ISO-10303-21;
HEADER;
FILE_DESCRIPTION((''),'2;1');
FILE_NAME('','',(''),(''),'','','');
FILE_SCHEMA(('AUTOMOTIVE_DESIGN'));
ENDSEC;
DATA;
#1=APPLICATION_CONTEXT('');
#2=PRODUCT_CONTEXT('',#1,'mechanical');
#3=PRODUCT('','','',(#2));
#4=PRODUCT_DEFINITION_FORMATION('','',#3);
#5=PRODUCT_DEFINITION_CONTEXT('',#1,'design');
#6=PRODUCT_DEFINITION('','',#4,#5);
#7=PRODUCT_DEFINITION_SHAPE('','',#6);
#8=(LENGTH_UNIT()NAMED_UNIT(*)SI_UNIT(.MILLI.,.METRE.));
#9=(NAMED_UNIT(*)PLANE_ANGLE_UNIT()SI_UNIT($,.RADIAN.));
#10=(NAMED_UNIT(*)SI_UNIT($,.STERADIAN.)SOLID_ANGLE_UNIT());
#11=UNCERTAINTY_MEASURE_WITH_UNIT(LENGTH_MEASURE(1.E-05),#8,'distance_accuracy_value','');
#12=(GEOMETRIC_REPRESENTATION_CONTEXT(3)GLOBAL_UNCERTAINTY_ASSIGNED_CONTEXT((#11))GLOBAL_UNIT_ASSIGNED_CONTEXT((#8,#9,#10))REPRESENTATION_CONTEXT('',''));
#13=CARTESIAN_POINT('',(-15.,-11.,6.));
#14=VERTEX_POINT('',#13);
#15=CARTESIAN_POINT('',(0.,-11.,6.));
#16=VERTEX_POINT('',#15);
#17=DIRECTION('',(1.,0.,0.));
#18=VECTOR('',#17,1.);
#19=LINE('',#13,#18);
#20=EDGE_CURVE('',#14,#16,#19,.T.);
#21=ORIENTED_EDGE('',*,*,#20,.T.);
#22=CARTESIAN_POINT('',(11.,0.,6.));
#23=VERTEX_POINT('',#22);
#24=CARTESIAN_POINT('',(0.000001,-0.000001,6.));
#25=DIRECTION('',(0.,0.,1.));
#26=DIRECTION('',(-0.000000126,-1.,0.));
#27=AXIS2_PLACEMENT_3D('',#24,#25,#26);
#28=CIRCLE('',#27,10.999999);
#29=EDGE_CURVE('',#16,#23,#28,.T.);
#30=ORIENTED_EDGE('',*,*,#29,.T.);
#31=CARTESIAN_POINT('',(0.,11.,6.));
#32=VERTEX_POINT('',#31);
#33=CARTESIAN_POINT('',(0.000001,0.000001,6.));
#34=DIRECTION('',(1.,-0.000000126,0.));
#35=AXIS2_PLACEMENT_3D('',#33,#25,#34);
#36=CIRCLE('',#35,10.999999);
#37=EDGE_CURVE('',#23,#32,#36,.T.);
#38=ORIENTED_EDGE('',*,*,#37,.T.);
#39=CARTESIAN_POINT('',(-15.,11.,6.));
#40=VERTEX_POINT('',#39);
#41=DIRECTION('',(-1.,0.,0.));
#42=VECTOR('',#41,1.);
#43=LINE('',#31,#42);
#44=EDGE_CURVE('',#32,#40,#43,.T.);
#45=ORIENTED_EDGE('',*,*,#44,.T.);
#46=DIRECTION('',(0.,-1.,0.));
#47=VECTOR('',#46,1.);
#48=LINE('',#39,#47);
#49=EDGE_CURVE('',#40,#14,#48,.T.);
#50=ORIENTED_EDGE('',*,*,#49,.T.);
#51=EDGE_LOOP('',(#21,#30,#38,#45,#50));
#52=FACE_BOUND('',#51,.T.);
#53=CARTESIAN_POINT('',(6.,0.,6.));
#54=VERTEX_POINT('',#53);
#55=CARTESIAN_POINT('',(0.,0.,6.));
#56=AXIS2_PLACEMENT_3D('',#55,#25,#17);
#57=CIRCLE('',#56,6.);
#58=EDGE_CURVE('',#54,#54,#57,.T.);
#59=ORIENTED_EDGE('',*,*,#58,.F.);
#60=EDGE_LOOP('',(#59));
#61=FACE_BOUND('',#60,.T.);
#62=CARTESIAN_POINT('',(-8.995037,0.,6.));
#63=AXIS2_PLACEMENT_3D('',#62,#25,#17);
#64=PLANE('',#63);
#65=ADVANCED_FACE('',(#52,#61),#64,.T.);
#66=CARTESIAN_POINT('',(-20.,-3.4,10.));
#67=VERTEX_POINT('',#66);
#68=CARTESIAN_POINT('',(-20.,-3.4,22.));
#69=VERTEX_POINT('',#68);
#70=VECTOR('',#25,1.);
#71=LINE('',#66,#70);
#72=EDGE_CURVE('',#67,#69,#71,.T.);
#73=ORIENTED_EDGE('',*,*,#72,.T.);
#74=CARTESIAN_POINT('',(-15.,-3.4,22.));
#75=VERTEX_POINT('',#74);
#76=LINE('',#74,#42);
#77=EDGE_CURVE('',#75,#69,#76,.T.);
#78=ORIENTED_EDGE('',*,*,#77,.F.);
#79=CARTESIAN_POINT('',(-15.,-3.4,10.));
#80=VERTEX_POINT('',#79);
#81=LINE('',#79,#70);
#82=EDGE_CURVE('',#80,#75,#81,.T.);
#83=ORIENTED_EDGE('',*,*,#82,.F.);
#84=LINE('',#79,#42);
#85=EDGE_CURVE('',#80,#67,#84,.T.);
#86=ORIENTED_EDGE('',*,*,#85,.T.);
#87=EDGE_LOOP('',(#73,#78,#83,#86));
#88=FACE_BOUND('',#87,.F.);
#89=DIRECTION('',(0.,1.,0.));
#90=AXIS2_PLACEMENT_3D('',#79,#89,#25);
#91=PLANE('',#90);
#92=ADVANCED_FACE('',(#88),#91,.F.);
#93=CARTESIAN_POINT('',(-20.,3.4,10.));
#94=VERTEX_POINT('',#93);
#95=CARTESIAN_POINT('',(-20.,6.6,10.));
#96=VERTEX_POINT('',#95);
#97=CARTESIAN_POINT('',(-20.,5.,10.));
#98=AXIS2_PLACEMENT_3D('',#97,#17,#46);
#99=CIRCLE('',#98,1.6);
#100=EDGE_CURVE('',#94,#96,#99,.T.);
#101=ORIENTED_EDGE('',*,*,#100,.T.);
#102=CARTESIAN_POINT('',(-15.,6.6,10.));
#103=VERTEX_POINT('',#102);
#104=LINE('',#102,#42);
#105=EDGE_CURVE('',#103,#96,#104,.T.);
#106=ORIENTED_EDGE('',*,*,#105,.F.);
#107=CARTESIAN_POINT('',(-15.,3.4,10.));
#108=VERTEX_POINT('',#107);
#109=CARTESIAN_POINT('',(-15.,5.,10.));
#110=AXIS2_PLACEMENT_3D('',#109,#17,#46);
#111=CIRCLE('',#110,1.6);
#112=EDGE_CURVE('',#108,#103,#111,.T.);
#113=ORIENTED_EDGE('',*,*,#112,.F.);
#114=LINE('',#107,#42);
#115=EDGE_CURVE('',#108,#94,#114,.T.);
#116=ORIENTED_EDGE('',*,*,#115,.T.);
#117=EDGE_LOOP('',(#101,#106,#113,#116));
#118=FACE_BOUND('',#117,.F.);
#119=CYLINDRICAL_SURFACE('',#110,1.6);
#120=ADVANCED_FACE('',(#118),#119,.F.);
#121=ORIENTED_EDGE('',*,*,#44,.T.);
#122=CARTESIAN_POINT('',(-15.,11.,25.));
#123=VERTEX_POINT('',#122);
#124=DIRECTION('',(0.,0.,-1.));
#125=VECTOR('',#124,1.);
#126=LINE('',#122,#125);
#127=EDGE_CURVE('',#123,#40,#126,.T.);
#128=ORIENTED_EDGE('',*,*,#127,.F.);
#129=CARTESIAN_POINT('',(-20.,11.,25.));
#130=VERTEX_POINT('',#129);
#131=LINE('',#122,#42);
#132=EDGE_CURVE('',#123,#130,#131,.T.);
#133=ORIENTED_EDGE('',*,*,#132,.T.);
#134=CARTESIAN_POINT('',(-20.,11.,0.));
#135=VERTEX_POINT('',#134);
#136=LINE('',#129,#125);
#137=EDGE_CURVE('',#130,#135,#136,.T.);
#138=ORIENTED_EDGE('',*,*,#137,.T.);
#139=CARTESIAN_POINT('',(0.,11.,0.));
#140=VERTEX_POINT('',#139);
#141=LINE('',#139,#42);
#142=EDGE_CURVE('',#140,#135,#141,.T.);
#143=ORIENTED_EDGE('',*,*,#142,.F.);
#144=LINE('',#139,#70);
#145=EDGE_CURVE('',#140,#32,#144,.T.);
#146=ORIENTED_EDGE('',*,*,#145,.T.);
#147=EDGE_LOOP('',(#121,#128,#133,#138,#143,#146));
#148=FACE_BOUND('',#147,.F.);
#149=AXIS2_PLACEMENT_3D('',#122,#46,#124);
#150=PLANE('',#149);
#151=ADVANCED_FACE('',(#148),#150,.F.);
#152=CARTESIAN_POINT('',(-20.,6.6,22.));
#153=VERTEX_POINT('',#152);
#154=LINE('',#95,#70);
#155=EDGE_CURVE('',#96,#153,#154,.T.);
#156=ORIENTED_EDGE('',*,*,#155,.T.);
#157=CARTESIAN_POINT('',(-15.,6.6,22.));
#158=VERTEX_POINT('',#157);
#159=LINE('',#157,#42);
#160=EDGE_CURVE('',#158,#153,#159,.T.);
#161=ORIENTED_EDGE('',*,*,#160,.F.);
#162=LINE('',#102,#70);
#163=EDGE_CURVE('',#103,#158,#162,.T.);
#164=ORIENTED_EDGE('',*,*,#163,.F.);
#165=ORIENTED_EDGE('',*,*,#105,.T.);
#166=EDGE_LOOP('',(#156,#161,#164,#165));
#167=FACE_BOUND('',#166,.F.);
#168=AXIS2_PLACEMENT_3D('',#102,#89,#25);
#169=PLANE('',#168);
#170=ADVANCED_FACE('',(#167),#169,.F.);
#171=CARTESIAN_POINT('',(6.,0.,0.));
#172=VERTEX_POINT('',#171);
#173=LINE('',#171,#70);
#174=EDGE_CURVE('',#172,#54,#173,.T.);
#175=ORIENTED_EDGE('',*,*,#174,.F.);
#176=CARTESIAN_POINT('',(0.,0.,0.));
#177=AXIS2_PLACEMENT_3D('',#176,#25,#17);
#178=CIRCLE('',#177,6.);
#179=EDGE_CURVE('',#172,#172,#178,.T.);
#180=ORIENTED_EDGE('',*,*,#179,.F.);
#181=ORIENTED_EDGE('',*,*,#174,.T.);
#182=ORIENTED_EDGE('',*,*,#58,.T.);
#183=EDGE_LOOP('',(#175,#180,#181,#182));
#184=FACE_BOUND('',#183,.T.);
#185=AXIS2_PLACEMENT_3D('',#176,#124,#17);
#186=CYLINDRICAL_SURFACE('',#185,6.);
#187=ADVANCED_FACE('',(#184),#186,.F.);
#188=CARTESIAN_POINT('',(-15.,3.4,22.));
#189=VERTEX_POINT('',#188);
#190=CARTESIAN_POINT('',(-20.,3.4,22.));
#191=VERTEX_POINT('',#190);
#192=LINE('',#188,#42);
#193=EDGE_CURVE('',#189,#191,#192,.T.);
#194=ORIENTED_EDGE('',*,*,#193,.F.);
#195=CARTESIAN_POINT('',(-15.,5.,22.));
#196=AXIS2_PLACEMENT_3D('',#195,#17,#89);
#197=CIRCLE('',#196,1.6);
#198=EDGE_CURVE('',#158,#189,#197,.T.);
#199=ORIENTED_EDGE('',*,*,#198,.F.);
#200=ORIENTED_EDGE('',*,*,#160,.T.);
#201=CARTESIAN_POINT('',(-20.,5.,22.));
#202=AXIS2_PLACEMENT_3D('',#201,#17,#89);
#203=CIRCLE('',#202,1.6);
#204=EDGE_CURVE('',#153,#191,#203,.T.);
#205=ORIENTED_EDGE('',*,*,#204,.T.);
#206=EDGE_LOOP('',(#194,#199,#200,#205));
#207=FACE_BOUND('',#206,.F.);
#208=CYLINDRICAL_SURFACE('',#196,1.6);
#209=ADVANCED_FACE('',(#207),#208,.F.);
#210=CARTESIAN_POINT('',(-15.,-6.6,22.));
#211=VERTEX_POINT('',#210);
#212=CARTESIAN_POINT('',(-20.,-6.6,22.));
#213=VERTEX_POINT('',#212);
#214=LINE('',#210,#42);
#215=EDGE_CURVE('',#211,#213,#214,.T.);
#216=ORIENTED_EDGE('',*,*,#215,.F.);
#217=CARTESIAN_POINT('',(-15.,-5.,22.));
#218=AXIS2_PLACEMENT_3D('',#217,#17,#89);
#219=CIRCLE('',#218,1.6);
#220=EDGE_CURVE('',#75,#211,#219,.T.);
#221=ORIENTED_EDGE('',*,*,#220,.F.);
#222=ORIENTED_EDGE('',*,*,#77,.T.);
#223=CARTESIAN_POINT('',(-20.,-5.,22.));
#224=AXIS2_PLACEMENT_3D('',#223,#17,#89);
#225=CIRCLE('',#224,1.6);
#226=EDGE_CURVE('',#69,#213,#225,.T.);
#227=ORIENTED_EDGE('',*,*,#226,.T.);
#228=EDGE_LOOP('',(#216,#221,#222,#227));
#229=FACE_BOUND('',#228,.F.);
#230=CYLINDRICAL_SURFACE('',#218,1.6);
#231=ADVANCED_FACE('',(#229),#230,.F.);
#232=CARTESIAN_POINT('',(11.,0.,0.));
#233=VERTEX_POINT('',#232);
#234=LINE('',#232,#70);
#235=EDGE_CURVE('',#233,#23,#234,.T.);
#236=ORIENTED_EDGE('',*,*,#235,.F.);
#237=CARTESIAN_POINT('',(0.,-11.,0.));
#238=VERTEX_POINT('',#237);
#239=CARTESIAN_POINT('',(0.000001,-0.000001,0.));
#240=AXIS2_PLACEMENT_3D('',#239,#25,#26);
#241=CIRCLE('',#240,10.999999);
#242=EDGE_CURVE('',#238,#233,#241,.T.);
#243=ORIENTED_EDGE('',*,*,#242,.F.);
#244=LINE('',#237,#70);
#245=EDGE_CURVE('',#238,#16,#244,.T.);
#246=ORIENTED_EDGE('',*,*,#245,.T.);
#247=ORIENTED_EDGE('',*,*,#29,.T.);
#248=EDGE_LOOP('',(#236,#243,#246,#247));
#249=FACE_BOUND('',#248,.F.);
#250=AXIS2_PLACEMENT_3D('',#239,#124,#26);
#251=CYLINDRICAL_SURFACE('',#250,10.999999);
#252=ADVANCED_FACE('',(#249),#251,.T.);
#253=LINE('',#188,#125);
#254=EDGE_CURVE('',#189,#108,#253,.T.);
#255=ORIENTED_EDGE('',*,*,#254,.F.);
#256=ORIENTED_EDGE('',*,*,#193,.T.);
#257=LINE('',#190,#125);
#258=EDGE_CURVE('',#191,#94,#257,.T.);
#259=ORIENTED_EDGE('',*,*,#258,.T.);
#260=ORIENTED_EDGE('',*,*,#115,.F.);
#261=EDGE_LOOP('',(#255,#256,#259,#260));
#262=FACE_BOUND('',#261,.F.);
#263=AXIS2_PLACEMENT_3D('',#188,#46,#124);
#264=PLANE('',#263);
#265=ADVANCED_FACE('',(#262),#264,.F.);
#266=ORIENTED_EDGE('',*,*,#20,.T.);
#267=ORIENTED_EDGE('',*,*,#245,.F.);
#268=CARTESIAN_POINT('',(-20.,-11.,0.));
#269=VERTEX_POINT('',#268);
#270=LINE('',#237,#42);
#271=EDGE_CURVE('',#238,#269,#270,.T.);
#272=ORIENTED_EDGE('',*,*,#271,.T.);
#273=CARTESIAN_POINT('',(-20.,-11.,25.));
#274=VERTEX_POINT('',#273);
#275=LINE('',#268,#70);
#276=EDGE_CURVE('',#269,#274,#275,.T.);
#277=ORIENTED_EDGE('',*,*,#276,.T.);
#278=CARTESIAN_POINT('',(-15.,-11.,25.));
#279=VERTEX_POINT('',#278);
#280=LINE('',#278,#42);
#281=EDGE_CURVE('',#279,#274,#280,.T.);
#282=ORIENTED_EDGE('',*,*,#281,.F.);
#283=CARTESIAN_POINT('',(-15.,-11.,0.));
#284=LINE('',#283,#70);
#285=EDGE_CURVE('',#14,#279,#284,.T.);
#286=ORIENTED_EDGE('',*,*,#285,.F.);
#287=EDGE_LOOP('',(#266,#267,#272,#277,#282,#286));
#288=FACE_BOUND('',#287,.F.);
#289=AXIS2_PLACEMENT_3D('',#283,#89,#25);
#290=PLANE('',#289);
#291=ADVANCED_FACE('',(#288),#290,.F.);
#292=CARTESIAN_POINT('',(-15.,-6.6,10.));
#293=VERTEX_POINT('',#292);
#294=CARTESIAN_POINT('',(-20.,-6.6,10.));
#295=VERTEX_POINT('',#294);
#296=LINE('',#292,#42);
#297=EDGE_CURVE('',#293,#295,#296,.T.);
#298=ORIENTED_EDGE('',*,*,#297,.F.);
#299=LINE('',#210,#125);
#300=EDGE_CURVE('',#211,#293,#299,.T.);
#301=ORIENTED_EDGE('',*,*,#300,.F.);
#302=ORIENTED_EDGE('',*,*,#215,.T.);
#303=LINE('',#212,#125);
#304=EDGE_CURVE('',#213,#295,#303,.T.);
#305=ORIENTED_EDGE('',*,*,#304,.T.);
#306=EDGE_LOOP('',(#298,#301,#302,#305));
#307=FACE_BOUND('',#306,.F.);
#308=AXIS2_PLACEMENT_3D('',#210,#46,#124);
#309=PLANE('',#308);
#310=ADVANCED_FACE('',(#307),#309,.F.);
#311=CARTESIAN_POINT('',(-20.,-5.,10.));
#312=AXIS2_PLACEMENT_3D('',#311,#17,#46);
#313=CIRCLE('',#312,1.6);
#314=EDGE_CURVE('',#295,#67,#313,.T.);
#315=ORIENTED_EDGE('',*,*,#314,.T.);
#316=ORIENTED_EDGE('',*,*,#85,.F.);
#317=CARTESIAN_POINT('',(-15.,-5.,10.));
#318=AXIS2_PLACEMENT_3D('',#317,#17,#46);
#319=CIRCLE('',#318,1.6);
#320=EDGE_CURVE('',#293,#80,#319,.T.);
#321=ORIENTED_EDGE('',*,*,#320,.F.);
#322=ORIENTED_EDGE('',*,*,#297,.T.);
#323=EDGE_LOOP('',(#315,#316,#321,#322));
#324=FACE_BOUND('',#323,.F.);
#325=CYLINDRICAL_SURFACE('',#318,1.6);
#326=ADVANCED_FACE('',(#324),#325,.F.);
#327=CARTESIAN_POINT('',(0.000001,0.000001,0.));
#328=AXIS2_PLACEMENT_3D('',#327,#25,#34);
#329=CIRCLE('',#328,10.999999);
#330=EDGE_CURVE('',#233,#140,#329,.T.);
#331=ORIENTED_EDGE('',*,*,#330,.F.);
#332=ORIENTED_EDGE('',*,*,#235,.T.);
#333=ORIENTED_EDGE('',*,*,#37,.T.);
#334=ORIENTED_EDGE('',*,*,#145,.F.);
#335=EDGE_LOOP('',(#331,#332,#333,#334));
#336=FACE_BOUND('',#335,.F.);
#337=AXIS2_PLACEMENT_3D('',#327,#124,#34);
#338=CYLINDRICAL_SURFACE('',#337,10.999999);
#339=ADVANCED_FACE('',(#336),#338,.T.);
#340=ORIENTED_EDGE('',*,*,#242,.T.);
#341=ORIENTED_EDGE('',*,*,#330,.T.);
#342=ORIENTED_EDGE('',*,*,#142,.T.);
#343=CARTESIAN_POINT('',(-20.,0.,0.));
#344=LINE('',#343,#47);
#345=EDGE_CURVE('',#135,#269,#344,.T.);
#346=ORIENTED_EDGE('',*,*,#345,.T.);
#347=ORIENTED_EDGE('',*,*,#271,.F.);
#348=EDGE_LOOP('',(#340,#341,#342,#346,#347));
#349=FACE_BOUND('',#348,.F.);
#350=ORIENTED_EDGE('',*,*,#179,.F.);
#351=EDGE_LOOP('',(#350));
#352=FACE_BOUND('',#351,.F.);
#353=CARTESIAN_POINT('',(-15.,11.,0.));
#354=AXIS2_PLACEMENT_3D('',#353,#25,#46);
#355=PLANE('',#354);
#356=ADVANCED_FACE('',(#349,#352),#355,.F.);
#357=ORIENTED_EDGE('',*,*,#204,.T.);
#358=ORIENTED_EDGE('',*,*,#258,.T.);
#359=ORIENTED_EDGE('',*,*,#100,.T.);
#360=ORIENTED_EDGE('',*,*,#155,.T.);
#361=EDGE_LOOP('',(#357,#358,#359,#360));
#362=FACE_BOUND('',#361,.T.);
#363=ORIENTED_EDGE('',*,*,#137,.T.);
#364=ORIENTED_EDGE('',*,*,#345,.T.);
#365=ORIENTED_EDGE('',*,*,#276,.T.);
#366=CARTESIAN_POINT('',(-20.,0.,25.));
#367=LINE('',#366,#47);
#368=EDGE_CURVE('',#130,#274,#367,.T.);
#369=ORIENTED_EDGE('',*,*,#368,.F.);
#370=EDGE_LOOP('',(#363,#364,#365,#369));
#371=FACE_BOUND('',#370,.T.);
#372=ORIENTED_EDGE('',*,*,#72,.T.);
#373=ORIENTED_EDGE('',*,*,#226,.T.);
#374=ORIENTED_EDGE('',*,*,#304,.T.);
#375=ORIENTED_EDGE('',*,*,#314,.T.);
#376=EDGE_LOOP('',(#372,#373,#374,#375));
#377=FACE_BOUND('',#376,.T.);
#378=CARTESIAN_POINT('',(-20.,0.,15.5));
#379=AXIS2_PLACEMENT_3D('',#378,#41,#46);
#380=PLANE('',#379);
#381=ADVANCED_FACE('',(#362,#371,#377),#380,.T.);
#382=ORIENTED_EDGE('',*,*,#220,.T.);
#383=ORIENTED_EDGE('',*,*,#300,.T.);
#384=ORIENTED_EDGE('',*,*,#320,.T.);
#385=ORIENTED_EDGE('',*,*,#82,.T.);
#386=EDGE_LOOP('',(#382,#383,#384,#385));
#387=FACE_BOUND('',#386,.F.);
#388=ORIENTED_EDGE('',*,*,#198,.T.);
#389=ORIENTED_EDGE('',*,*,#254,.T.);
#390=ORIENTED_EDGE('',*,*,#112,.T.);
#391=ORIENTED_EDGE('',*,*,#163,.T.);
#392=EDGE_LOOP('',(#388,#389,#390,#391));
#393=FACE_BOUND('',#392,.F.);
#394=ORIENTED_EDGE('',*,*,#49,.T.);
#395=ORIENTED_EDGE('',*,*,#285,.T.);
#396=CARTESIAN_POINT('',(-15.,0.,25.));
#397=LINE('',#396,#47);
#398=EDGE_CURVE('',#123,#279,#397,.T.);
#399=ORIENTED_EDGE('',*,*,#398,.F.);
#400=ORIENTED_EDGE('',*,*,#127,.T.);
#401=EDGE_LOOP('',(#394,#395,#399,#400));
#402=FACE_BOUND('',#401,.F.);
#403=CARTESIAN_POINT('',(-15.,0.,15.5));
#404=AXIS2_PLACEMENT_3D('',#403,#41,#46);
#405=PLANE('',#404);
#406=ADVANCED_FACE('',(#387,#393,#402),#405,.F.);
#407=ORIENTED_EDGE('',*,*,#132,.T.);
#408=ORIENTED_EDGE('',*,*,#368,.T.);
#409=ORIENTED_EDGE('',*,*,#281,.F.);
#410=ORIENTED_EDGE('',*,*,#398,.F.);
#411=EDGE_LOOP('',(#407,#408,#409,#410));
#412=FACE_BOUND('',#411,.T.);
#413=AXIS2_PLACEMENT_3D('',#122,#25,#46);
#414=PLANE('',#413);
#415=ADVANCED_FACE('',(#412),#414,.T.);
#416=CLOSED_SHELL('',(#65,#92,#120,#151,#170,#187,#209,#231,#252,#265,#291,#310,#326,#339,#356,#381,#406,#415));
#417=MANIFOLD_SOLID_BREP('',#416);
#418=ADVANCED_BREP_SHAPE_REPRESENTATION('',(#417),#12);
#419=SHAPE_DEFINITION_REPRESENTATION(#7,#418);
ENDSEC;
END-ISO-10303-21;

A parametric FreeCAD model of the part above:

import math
import FreeCAD as App
import Part
import Sketcher


def add_polygon(sketch, points):
    """Adds a closed chain of lines whose ends are joined by coincident constraints."""
    first, n = sketch.GeometryCount, len(points)
    for a, b in zip(points, points[1:] + points[:1]):
        sketch.addGeometry(Part.LineSegment(App.Vector(*a, 0), App.Vector(*b, 0)), False)
    for i in range(n):
        sketch.addConstraint(Sketcher.Constraint("Coincident", first + i, 2, first + (i + 1) % n, 1))

doc = App.newDocument("Part")
body = doc.addObject("PartDesign::Body", "Body")

# Sketch on XY plane
sketch1 = body.newObject("Sketcher::SketchObject", "Sketch")
sketch1.AttachmentSupport = (doc.getObject("XY_Plane"), [""])
sketch1.MapMode = "FlatFace"
sketch1.addGeometry(Part.LineSegment(App.Vector(0, 11, 0), App.Vector(-15, 11, 0)), False)
sketch1.addGeometry(Part.LineSegment(App.Vector(-15, 11, 0), App.Vector(-15, -11, 0)), False)
sketch1.addGeometry(Part.LineSegment(App.Vector(-15, -11, 0), App.Vector(0, -11, 0)), False)
sketch1.addGeometry(Part.ArcOfCircle(Part.Circle(App.Vector(0.000001, -0.000001, 0), App.Vector(0, 0, 1), 10.999999), math.radians(-90.000007), math.radians(0.000007)), False)
sketch1.addGeometry(Part.ArcOfCircle(Part.Circle(App.Vector(0.000001, 0.000001, 0), App.Vector(0, 0, 1), 10.999999), math.radians(-0.000007), math.radians(90.000007)), False)
sketch1.addGeometry(Part.Circle(App.Vector(0, 0, 0), App.Vector(0, 0, 1), 6), False)
sketch1.addConstraint(Sketcher.Constraint("Coincident", 0, 2, 1, 1))
sketch1.addConstraint(Sketcher.Constraint("Coincident", 1, 2, 2, 1))
sketch1.addConstraint(Sketcher.Constraint("Tangent", 2, 2, 3, 1))
sketch1.addConstraint(Sketcher.Constraint("Tangent", 3, 2, 4, 1))
sketch1.addConstraint(Sketcher.Constraint("Tangent", 4, 2, 0, 1))
sketch1.addConstraint(Sketcher.Constraint("Horizontal", 0))
sketch1.addConstraint(Sketcher.Constraint("Vertical", 1))
sketch1.addConstraint(Sketcher.Constraint("Horizontal", 2))
sketch1.addConstraint(Sketcher.Constraint("Coincident", 3, 3, -1, 1))
sketch1.addConstraint(Sketcher.Constraint("Coincident", 5, 3, -1, 1))
sketch1.addConstraint(Sketcher.Constraint("Equal", 3, 4))
sketch1.addConstraint(Sketcher.Constraint("PointOnObject", 3, 2, -1))
sketch1.addConstraint(Sketcher.Constraint("Diameter", 5, 12.0))
sketch1.addConstraint(Sketcher.Constraint("Radius", 3, 10.999999))
sketch1.addConstraint(Sketcher.Constraint("DistanceX", 0, 2, 0, 1, 15.0))
pad1 = body.newObject("PartDesign::Pad", "Pad")
pad1.Profile = sketch1
pad1.Length = 6

# Sketch on YZ plane
sketch2 = body.newObject("Sketcher::SketchObject", "Sketch001")
sketch2.AttachmentSupport = (doc.getObject("YZ_Plane"), [""])
sketch2.MapMode = "FlatFace"
sketch2.AttachmentOffset = App.Placement(App.Vector(0, 0, -15), App.Rotation())
add_polygon(sketch2, [(11, 25), (11, 0), (-11, 0), (-11, 25)])  # lines 0-3
sketch2.addGeometry(Part.ArcOfCircle(Part.Circle(App.Vector(5, 22, 0), App.Vector(0, 0, 1), 1.6), math.radians(0), math.radians(180)), False)  # 4
sketch2.addGeometry(Part.LineSegment(App.Vector(3.4, 22, 0), App.Vector(3.4, 10, 0)), False)  # 5
sketch2.addGeometry(Part.ArcOfCircle(Part.Circle(App.Vector(5, 10, 0), App.Vector(0, 0, 1), 1.6), math.radians(180), math.radians(360)), False)  # 6
sketch2.addGeometry(Part.LineSegment(App.Vector(6.6, 10, 0), App.Vector(6.6, 22, 0)), False)  # 7
sketch2.addGeometry(Part.ArcOfCircle(Part.Circle(App.Vector(-5, 22, 0), App.Vector(0, 0, 1), 1.6), math.radians(0), math.radians(180)), False)  # 8
sketch2.addGeometry(Part.LineSegment(App.Vector(-6.6, 22, 0), App.Vector(-6.6, 10, 0)), False)  # 9
sketch2.addGeometry(Part.ArcOfCircle(Part.Circle(App.Vector(-5, 10, 0), App.Vector(0, 0, 1), 1.6), math.radians(180), math.radians(360)), False)  # 10
sketch2.addGeometry(Part.LineSegment(App.Vector(-3.4, 10, 0), App.Vector(-3.4, 22, 0)), False)  # 11
sketch2.addConstraint(Sketcher.Constraint("Tangent", 4, 2, 5, 1))
sketch2.addConstraint(Sketcher.Constraint("Tangent", 5, 2, 6, 1))
sketch2.addConstraint(Sketcher.Constraint("Tangent", 6, 2, 7, 1))
sketch2.addConstraint(Sketcher.Constraint("Tangent", 7, 2, 4, 1))
sketch2.addConstraint(Sketcher.Constraint("Tangent", 8, 2, 9, 1))
sketch2.addConstraint(Sketcher.Constraint("Tangent", 9, 2, 10, 1))
sketch2.addConstraint(Sketcher.Constraint("Tangent", 10, 2, 11, 1))
sketch2.addConstraint(Sketcher.Constraint("Tangent", 11, 2, 8, 1))
sketch2.addConstraint(Sketcher.Constraint("Vertical", 0))
sketch2.addConstraint(Sketcher.Constraint("Horizontal", 1))
sketch2.addConstraint(Sketcher.Constraint("Vertical", 2))
sketch2.addConstraint(Sketcher.Constraint("Horizontal", 3))
sketch2.addConstraint(Sketcher.Constraint("Vertical", 5))
sketch2.addConstraint(Sketcher.Constraint("Vertical", 7))
sketch2.addConstraint(Sketcher.Constraint("Vertical", 9))
sketch2.addConstraint(Sketcher.Constraint("Vertical", 11))
sketch2.addConstraint(Sketcher.Constraint("Equal", 6, 8))
sketch2.addConstraint(Sketcher.Constraint("Symmetric", 0, 2, 1, 2, -1, 1))
sketch2.addConstraint(Sketcher.Constraint("Symmetric", 4, 3, 8, 3, -2))
sketch2.addConstraint(Sketcher.Constraint("Horizontal", 6, 3, 10, 3))
sketch2.addConstraint(Sketcher.Constraint("Radius", 4, 1.6))
sketch2.addConstraint(Sketcher.Constraint("DistanceX", 1, 2, 1, 1, 22.0))
sketch2.addConstraint(Sketcher.Constraint("DistanceY", 0, 2, 0, 1, 25.0))
sketch2.addConstraint(Sketcher.Constraint("DistanceY", 5, 2, 5, 1, 12.0))
sketch2.addConstraint(Sketcher.Constraint("DistanceX", -1, 1, 4, 3, 5.0))
sketch2.addConstraint(Sketcher.Constraint("DistanceY", -1, 1, 4, 3, 22.0))
pad2 = body.newObject("PartDesign::Pad", "Pad001")
pad2.Profile = sketch2
pad2.Length = 5
pad2.Reversed = True

doc.recompute()
